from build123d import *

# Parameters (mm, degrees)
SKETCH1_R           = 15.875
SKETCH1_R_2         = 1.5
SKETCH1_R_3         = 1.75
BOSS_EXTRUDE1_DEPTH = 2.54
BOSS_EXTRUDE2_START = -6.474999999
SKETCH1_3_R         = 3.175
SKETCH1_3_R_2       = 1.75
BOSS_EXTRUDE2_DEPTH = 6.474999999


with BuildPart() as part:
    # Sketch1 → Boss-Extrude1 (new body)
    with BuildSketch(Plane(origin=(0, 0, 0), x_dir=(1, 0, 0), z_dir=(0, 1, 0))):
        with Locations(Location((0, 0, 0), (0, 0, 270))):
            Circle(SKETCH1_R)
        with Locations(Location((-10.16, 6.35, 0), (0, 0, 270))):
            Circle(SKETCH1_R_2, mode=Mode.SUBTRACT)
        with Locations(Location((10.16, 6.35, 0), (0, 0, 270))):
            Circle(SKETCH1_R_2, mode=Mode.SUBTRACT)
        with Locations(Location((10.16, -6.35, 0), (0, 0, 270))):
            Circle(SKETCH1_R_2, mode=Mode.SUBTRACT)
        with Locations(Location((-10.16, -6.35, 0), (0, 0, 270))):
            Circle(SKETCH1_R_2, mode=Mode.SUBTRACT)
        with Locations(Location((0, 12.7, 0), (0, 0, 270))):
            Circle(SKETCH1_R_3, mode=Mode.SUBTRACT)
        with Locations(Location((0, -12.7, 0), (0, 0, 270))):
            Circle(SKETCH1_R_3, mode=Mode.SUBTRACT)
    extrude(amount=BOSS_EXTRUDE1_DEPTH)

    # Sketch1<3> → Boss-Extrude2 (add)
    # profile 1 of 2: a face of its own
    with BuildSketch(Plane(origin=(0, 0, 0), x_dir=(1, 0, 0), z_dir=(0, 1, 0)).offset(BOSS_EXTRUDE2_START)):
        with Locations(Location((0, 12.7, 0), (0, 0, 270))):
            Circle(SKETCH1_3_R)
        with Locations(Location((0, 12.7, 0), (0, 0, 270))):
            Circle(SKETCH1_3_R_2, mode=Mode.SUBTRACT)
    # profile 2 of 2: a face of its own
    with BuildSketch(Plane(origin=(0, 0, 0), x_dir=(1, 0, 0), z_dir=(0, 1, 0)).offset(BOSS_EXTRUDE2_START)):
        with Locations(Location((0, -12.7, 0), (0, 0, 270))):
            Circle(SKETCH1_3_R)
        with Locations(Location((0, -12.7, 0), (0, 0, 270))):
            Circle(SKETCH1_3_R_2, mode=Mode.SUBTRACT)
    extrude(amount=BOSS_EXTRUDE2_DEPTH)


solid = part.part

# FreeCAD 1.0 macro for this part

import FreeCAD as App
import Part
import Sketcher
from FreeCAD import Vector
Q = App.Units.Quantity

doc = App.newDocument("Part")
body = doc.addObject("PartDesign::Body", "Body")

# Sketch on XZ plane
sketch1 = body.newObject("Sketcher::SketchObject", "Sketch")
sketch1.AttachmentSupport = (doc.getObject("XZ_Plane"), [""])
sketch1.MapMode = "FlatFace"
sketch1.addGeometry([
    Part.Circle(Vector(0, 0, 0), Vector(0, 0, 1), 15.9),  # 0
    Part.Circle(Vector(-10.2, -6.3, 0), Vector(0, 0, 1), 1.5),  # 1
    Part.Circle(Vector(0, -12.7, 0), Vector(0, 0, 1), 1.8),  # 2
    Part.Circle(Vector(-10.2, 6.3, 0), Vector(0, 0, 1), 1.5),  # 3
    Part.Circle(Vector(10.2, -6.3, 0), Vector(0, 0, 1), 1.5),  # 4
    Part.Circle(Vector(0, 12.7, 0), Vector(0, 0, 1), 1.8),  # 5
    Part.Circle(Vector(10.2, 6.3, 0), Vector(0, 0, 1), 1.5),  # 6
], False)
sketch1.addConstraint([
    Sketcher.Constraint("Coincident", 0, 3, -1, 1),
    Sketcher.Constraint("Equal", 1, 3),
    Sketcher.Constraint("Equal", 3, 4),
    Sketcher.Constraint("Equal", 2, 5),
    Sketcher.Constraint("Equal", 4, 6),
    Sketcher.Constraint("Symmetric", 3, 3, 4, 3, -1, 1),
    Sketcher.Constraint("Symmetric", 2, 3, 5, 3, -1, 1),
    Sketcher.Constraint("Symmetric", 1, 3, 6, 3, -1, 1),
    Sketcher.Constraint("Symmetric", 1, 3, 4, 3, -2),
    Sketcher.Constraint("PointOnObject", 2, 3, -2),
    Sketcher.Constraint("Diameter", 0, Q("1.25 in")),
    Sketcher.Constraint("DistanceY", 2, 3, 5, 3, Q("1 in")),
    Sketcher.Constraint("DistanceX", 1, 3, -1, 1, Q("0.4 in")),
    Sketcher.Constraint("DistanceY", 1, 3, 3, 3, Q("0.5 in")),
    Sketcher.Constraint("Diameter", 1, Q("3 mm")),
    Sketcher.Constraint("Diameter", 2, Q("3.5 mm")),
])
pad1 = body.newObject("PartDesign::Pad", "Pad")
pad1.Profile = sketch1
pad1.Length = Q("0.1 in")
pad1.Reversed = True

# Sketch on XZ plane
sketch2 = body.newObject("Sketcher::SketchObject", "Sketch001")
sketch2.AttachmentSupport = (doc.getObject("XZ_Plane"), [""])
sketch2.MapMode = "FlatFace"
sketch2.AttachmentOffset = App.Placement(Vector(0, 0, 6.475), App.Rotation())
sketch2.addGeometry([
    Part.Circle(Vector(0, -12.7, 0), Vector(0, 0, 1), 3.2),
    Part.Circle(Vector(0, -12.7, 0), Vector(0, 0, 1), 1.8),
    Part.Circle(Vector(0, 12.7, 0), Vector(0, 0, 1), 3.2),
    Part.Circle(Vector(0, 12.7, 0), Vector(0, 0, 1), 1.8),
], False)
sketch2.addConstraint([
    Sketcher.Constraint("Coincident", 1, 3, 0, 3),
    Sketcher.Constraint("Coincident", 3, 3, 2, 3),
    Sketcher.Constraint("Equal", 0, 2),
    Sketcher.Constraint("Equal", 1, 3),
    Sketcher.Constraint("Symmetric", 0, 3, 2, 3, -1, 1),
    Sketcher.Constraint("PointOnObject", 0, 3, -2),
    Sketcher.Constraint("Diameter", 0, Q("0.25 in")),
    Sketcher.Constraint("DistanceY", 0, 3, 2, 3, Q("1 in")),
    Sketcher.Constraint("Diameter", 1, Q("3.5 mm")),
])
pad2 = body.newObject("PartDesign::Pad", "Pad001")
pad2.Profile = sketch2
pad2.Length = 6.475
pad2.Reversed = True

doc.recompute()
